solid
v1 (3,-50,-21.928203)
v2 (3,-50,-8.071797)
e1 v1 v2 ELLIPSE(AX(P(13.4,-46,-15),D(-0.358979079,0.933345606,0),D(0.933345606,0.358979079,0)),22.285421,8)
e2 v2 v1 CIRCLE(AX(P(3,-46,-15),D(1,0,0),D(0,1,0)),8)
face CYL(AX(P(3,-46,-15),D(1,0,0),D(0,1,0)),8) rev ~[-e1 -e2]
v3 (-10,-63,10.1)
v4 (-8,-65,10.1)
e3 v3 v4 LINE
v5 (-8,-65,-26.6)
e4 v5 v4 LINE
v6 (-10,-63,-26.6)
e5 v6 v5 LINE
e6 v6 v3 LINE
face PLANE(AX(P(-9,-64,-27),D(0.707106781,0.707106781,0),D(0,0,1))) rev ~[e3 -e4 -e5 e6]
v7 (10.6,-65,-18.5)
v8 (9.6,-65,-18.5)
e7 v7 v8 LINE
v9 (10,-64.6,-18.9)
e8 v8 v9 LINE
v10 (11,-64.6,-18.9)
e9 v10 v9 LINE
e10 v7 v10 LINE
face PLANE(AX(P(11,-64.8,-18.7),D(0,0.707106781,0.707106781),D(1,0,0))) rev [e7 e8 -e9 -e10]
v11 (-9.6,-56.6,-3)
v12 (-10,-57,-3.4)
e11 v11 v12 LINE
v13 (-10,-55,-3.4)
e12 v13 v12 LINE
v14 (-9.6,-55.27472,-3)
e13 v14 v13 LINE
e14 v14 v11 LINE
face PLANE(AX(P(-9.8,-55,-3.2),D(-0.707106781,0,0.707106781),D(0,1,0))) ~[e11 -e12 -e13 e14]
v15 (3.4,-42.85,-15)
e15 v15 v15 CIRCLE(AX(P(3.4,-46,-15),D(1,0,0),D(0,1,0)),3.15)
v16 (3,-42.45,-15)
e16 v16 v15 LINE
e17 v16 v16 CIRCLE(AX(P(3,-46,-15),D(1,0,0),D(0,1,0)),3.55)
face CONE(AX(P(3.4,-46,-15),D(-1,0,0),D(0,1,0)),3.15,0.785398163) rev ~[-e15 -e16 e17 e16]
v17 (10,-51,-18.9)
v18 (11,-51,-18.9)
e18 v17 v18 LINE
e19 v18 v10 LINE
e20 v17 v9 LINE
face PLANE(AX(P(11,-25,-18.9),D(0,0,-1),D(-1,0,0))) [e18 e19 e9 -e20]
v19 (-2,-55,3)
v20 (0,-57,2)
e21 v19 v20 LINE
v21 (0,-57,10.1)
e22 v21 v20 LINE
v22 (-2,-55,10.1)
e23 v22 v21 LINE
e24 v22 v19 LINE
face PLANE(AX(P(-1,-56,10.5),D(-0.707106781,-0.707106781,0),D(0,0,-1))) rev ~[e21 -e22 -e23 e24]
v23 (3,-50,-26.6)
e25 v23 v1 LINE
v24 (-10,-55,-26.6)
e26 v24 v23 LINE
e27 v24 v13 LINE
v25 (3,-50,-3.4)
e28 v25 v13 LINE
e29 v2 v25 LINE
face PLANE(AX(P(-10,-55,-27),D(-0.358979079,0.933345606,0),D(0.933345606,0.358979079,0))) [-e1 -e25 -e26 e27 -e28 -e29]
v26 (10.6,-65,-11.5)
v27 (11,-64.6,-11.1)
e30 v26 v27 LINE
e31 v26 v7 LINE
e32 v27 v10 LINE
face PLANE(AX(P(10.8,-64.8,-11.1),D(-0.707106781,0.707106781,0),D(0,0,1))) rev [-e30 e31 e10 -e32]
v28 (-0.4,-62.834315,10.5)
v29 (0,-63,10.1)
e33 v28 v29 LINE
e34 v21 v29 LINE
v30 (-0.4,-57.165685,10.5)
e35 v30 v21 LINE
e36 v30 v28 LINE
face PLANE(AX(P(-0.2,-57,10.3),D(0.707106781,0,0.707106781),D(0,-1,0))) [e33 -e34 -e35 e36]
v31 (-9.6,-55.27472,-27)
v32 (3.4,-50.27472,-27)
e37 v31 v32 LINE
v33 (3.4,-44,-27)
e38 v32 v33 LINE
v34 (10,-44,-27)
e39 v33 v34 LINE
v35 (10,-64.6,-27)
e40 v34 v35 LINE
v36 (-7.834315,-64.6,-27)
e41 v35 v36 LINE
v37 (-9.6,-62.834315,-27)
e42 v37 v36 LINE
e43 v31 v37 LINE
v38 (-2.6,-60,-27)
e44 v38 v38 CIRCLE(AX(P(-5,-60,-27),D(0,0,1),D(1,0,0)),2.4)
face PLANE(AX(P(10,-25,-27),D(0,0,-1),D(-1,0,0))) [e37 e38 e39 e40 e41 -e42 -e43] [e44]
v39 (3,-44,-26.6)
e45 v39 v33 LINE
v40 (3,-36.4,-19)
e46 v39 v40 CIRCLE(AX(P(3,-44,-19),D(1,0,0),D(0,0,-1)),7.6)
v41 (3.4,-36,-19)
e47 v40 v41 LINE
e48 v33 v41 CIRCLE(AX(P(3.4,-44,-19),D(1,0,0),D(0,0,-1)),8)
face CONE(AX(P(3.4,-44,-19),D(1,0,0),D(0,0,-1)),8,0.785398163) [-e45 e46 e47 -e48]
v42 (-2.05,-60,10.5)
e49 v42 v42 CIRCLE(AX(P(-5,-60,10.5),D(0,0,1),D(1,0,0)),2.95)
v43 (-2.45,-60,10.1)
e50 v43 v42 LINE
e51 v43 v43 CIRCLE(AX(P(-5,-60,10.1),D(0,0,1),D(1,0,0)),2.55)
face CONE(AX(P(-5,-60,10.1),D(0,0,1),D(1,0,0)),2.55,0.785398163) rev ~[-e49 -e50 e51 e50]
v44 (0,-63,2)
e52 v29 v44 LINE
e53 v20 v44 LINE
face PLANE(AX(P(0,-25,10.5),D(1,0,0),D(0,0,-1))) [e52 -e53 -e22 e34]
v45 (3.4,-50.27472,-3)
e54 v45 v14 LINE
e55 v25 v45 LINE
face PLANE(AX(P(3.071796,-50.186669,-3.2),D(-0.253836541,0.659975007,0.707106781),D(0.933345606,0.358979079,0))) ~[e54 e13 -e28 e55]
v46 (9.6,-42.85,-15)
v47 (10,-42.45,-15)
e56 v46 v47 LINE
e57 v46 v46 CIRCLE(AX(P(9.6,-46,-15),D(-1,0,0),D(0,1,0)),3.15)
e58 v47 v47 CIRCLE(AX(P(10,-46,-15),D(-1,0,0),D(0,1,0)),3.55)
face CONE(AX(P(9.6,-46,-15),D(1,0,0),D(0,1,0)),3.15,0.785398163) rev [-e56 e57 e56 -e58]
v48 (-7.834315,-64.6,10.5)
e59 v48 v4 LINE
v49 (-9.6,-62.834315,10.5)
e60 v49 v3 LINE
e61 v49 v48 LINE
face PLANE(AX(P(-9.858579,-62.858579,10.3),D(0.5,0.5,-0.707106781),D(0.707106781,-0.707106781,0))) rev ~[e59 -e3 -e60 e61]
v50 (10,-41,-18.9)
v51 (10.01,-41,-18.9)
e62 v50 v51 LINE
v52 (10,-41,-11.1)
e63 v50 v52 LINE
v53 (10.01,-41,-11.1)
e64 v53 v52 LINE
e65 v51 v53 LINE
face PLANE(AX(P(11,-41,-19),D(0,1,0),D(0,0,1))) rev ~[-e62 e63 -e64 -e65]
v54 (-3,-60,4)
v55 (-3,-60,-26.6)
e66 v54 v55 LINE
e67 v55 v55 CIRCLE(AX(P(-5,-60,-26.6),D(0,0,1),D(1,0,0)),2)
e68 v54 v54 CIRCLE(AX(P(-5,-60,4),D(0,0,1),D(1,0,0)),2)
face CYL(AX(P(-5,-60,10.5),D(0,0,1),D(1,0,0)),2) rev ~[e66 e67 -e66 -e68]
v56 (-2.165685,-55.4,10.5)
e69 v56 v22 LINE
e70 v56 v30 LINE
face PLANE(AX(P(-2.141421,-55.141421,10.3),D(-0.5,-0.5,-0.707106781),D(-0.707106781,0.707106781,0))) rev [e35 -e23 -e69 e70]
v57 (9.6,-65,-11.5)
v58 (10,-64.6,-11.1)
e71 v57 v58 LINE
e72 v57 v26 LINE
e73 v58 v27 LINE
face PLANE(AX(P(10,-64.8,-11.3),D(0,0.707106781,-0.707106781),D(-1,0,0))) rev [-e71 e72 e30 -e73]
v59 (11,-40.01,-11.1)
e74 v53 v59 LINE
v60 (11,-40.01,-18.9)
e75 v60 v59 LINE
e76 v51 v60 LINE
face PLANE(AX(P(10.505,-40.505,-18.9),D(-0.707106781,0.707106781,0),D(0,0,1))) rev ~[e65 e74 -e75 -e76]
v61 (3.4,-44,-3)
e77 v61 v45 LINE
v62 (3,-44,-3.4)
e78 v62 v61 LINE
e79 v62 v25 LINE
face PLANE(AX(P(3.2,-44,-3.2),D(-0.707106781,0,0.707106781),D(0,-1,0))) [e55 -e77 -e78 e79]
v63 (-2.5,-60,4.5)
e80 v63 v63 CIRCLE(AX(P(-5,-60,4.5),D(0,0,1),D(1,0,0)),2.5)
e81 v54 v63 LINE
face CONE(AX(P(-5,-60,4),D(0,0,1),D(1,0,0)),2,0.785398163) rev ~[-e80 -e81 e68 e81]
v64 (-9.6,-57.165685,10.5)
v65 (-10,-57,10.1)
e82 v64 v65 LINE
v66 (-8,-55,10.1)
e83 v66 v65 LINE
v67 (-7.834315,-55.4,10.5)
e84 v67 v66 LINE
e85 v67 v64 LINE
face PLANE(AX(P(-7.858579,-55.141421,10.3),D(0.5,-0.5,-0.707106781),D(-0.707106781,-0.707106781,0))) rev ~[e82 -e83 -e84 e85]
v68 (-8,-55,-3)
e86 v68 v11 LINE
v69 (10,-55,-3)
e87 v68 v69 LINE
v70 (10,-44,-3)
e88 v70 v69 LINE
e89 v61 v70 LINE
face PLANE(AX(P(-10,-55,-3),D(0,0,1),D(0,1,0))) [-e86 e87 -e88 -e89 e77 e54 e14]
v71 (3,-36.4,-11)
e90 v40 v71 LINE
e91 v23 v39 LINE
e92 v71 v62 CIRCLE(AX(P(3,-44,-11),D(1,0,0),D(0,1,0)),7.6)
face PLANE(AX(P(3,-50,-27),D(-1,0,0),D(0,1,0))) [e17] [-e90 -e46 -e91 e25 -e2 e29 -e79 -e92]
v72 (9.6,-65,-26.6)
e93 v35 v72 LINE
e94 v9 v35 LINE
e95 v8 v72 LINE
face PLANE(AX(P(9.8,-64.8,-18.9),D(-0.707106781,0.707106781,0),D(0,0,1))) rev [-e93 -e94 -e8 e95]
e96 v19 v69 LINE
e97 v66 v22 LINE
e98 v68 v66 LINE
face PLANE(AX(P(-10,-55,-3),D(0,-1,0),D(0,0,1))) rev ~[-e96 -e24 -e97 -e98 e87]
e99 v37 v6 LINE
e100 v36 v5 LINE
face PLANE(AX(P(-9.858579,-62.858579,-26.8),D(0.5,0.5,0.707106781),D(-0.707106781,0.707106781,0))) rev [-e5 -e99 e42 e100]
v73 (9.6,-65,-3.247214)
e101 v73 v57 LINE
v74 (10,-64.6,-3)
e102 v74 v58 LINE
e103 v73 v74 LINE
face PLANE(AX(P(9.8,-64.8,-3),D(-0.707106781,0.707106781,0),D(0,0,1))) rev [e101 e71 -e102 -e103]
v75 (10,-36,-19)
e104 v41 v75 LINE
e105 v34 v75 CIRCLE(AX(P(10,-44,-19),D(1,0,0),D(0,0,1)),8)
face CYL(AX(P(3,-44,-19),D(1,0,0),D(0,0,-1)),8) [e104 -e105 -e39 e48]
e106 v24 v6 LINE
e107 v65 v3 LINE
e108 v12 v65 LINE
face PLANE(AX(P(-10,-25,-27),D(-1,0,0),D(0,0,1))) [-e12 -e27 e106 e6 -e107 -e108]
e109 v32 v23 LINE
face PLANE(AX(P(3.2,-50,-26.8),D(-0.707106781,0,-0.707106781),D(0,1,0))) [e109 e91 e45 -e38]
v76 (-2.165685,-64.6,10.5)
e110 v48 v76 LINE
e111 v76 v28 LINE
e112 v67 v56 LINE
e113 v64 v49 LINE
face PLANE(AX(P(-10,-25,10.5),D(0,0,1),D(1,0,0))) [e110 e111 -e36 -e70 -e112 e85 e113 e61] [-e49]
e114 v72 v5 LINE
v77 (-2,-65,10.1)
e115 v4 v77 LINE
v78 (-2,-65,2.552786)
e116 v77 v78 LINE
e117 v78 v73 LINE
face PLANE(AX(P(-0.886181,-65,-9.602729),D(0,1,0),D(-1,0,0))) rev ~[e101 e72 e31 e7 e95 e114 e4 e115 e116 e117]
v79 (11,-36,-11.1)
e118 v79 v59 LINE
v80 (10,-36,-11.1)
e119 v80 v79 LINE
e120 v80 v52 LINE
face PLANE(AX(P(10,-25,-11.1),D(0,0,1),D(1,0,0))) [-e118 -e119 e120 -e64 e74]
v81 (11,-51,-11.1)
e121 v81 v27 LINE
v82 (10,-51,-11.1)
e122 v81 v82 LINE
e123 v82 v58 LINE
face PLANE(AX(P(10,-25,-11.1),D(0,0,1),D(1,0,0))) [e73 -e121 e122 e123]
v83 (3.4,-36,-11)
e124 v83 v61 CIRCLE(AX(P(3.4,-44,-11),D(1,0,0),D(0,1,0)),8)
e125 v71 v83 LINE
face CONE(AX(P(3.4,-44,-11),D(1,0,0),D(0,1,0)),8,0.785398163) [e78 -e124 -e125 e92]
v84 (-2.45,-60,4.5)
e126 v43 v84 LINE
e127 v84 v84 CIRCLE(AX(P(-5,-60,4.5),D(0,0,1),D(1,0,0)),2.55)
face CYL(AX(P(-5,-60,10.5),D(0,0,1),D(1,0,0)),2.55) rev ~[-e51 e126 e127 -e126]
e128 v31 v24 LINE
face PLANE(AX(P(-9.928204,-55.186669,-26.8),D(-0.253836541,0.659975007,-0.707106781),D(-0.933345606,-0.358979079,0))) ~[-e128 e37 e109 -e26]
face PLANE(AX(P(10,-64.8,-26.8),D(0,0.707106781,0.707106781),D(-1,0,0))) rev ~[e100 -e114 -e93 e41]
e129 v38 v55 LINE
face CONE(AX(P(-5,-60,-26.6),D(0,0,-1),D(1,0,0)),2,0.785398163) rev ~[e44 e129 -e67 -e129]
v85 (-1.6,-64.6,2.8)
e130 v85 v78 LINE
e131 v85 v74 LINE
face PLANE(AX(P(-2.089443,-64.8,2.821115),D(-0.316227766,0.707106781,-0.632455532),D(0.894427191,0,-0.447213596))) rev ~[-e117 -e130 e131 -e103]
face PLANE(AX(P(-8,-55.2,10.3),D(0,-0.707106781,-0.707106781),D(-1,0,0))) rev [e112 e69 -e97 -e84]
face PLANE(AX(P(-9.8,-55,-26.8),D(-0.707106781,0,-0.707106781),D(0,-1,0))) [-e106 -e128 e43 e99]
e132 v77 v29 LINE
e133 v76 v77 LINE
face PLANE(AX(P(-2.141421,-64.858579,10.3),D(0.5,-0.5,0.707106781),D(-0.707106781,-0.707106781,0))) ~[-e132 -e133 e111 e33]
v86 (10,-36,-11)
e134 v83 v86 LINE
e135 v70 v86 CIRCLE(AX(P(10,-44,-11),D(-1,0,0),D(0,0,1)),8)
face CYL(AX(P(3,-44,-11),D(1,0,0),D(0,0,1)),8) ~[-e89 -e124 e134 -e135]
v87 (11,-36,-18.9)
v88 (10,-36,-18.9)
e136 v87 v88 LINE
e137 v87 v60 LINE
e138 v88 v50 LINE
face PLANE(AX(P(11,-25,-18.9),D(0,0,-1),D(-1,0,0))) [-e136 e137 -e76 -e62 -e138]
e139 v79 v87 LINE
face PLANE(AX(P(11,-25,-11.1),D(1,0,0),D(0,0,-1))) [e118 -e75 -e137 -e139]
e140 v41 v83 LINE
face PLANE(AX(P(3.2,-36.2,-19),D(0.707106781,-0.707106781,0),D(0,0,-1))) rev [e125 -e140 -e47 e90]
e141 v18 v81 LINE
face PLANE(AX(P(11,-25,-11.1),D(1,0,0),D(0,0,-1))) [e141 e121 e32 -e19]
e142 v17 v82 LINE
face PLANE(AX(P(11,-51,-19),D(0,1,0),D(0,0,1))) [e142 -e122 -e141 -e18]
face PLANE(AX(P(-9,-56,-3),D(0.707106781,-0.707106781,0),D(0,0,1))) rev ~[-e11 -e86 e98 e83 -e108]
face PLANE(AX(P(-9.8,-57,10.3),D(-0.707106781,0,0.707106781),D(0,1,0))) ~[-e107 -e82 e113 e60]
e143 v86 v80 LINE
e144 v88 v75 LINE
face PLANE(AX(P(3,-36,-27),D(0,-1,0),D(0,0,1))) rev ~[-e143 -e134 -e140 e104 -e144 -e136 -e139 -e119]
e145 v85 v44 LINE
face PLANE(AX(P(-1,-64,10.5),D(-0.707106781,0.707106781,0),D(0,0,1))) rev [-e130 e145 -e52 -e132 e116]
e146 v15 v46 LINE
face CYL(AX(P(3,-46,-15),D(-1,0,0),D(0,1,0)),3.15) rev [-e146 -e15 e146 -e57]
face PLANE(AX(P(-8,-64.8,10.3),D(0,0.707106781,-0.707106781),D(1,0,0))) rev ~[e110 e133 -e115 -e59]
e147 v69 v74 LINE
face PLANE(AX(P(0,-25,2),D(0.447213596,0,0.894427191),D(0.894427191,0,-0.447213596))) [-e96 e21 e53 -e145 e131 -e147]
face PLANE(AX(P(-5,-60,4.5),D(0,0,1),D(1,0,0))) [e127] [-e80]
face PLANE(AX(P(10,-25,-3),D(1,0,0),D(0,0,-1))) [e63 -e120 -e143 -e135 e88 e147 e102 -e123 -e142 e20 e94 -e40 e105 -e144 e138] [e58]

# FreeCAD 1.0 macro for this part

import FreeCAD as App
import Part
import Sketcher
from FreeCAD import Vector
Q = App.Units.Quantity


def edges_at(feature, points):
    """Names of the edges that pass closest to the given points."""
    edges = feature.Shape.Edges
    near = lambda p: min(range(len(edges)), key=lambda i: edges[i].distToShape(Part.Vertex(*p))[0])
    return sorted({f"Edge{near(p) + 1}" for p in points})


def add_polygon(sketch, points):
    """Adds a closed chain of lines whose ends are joined by coincident constraints."""
    first, n = sketch.GeometryCount, len(points)
    for a, b in zip(points, points[1:] + points[:1]):
        sketch.addGeometry(Part.LineSegment(App.Vector(*a, 0), App.Vector(*b, 0)), False)
    for i in range(n):
        sketch.addConstraint(Sketcher.Constraint("Coincident", first + i, 2, first + (i + 1) % n, 1))

doc = App.newDocument("Part")
body = doc.addObject("PartDesign::Body", "Body")

# Sketch on XZ plane
sketch1 = body.newObject("Sketcher::SketchObject", "Sketch")
sketch1.AttachmentSupport = (doc.getObject("XZ_Plane"), [""])
sketch1.MapMode = "FlatFace"
add_polygon(sketch1, [(-10, 10.5), (-20, 10.5), (-20, -27), (0, -27), (0, -18.9), (1, -18.9), (1, -11.1), (0, -11.1), (0, -3), (-10, 2)])  # lines 0-9
sketch1.addConstraint([
    Sketcher.Constraint("Horizontal", 0),
    Sketcher.Constraint("Vertical", 1),
    Sketcher.Constraint("Horizontal", 2),
    Sketcher.Constraint("Vertical", 3),
    Sketcher.Constraint("Horizontal", 4),
    Sketcher.Constraint("Vertical", 5),
    Sketcher.Constraint("Horizontal", 6),
    Sketcher.Constraint("Vertical", 7),
    Sketcher.Constraint("Vertical", 9),
    Sketcher.Constraint("PointOnObject", 2, 2, -2),
    Sketcher.Constraint("PointOnObject", 6, 2, -2),
    Sketcher.Constraint("Equal", 3, 7),
    Sketcher.Constraint("DistanceX", 0, 2, 0, 1, Q("10 mm")),
    Sketcher.Constraint("DistanceX", 2, 1, 2, 2, Q("20 mm")),
    Sketcher.Constraint("DistanceX", 4, 1, 4, 2, Q("1 mm")),
    Sketcher.Constraint("DistanceY", 1, 2, 1, 1, Q("37.5 mm")),
    Sketcher.Constraint("DistanceY", 3, 1, 3, 2, Q("8.1 mm")),
    Sketcher.Constraint("DistanceY", 5, 1, 5, 2, Q("7.8 mm")),
    Sketcher.Constraint("DistanceY", 9, 1, 9, 2, Q("8.5 mm")),
    Sketcher.Constraint("DistanceY", 1, 2, -1, 1, Q("27 mm")),
])
pad1 = body.newObject("PartDesign::Pad", "Pad")
pad1.Profile = sketch1
pad1.Length = 40

# Sketch on YZ plane
sketch2 = body.newObject("Sketcher::SketchObject", "Sketch001")
sketch2.AttachmentSupport = (doc.getObject("YZ_Plane"), [""])
sketch2.MapMode = "FlatFace"
sketch2.AttachmentOffset = App.Placement(Vector(0, 0, -20), App.Rotation())
add_polygon(sketch2, [(-30, 10.5), (-30, -3), (0, -3), (0, 10.5)])  # lines 0-3
sketch2.addConstraint([
    Sketcher.Constraint("Vertical", 0),
    Sketcher.Constraint("Horizontal", 1),
    Sketcher.Constraint("Vertical", 2),
    Sketcher.Constraint("Horizontal", 3),
    Sketcher.Constraint("PointOnObject", 1, 2, -2),
    Sketcher.Constraint("DistanceX", 1, 1, 1, 2, Q("30 mm")),
    Sketcher.Constraint("DistanceY", 0, 2, 0, 1, Q("13.5 mm")),
    Sketcher.Constraint("DistanceY", 0, 2, -1, 1, Q("3 mm")),
])
pocket1 = body.newObject("PartDesign::Pocket", "Pocket")
pocket1.Profile = sketch2
pocket1.Type = "ThroughAll"
pocket1.Reversed = True

# Sketch on XY plane
sketch3 = body.newObject("Sketcher::SketchObject", "Sketch002")
sketch3.AttachmentSupport = (doc.getObject("XY_Plane"), [""])
sketch3.MapMode = "FlatFace"
sketch3.AttachmentOffset = App.Placement(Vector(0, 0, -27), App.Rotation())
add_polygon(sketch3, [(-20, -30), (-7, -25), (-7, 0), (-20, 0)])  # lines 0-3
sketch3.addConstraint([
    Sketcher.Constraint("Vertical", 1),
    Sketcher.Constraint("Horizontal", 2),
    Sketcher.Constraint("Vertical", 3),
    Sketcher.Constraint("PointOnObject", 1, 2, -1),
    Sketcher.Constraint("DistanceX", 2, 2, 2, 1, Q("13 mm")),
    Sketcher.Constraint("DistanceY", 1, 1, 1, 2, Q("25 mm")),
    Sketcher.Constraint("DistanceY", 3, 2, 3, 1, Q("30 mm")),
    Sketcher.Constraint("DistanceX", 0, 2, -1, 1, Q("7 mm")),
])
pocket2 = body.newObject("PartDesign::Pocket", "Pocket001")
pocket2.Profile = sketch3
pocket2.Type = "ThroughAll"
pocket2.Reversed = True

# Sketch on YZ plane
sketch4 = body.newObject("Sketcher::SketchObject", "Sketch003")
sketch4.AttachmentSupport = (doc.getObject("YZ_Plane"), [""])
sketch4.MapMode = "FlatFace"
sketch4.AttachmentOffset = App.Placement(Vector(0, 0, -7), App.Rotation())
sketch4.addGeometry(Part.Circle(Vector(-21, -15, 0), Vector(0, 0, 1), 8), False)
sketch4.addConstraint([
    Sketcher.Constraint("Diameter", 0, Q("16 mm")),
    Sketcher.Constraint("DistanceX", 0, 3, -1, 1, Q("21 mm")),
    Sketcher.Constraint("DistanceY", 0, 3, -1, 1, Q("15 mm")),
])
pocket3 = body.newObject("PartDesign::Pocket", "Pocket002")
pocket3.Profile = sketch4
pocket3.Type = "ThroughAll"

# Sketch on YZ plane
sketch5 = body.newObject("Sketcher::SketchObject", "Sketch004")
sketch5.AttachmentSupport = (doc.getObject("YZ_Plane"), [""])
sketch5.MapMode = "FlatFace"
sketch5.AttachmentOffset = App.Placement(Vector(0, 0, -7), App.Rotation())
sketch5.addGeometry(Part.Circle(Vector(-21, -15, 0), Vector(0, 0, 1), 3.15), False)
sketch5.addConstraint([
    Sketcher.Constraint("Diameter", 0, Q("6.3 mm")),
    Sketcher.Constraint("DistanceX", 0, 3, -1, 1, Q("21 mm")),
    Sketcher.Constraint("DistanceY", 0, 3, -1, 1, Q("15 mm")),
])
pocket4 = body.newObject("PartDesign::Pocket", "Pocket003")
pocket4.Profile = sketch5
pocket4.Type = "ThroughAll"
pocket4.Reversed = True

# Sketch on YZ plane
sketch6 = body.newObject("Sketcher::SketchObject", "Sketch005")
sketch6.AttachmentSupport = (doc.getObject("YZ_Plane"), [""])
sketch6.MapMode = "FlatFace"
sketch6.AttachmentOffset = App.Placement(Vector(0, 0, -7), App.Rotation())
add_polygon(sketch6, [(-11, -3), (-11, -27), (0, -27), (0, -3)])  # lines 0-3
sketch6.addConstraint([
    Sketcher.Constraint("Vertical", 0),
    Sketcher.Constraint("Horizontal", 1),
    Sketcher.Constraint("Vertical", 2),
    Sketcher.Constraint("Horizontal", 3),
    Sketcher.Constraint("PointOnObject", 1, 2, -2),
    Sketcher.Constraint("DistanceX", 1, 1, 1, 2, Q("11 mm")),
    Sketcher.Constraint("DistanceY", 0, 2, 0, 1, Q("24 mm")),
    Sketcher.Constraint("DistanceY", 0, 2, -1, 1, Q("27 mm")),
])
pocket5 = body.newObject("PartDesign::Pocket", "Pocket004")
pocket5.Profile = sketch6
pocket5.Type = "ThroughAll"
pocket5.Reversed = True
doc.recompute()

fillet = body.newObject("PartDesign::Fillet", "Fillet")
fillet.Base = (pocket5, edges_at(pocket5, [(-3.5, -11, -27), (-3.5, -11, -3)]))
fillet.Radius = 8

# Sketch on XY plane
sketch7 = body.newObject("Sketcher::SketchObject", "Sketch006")
sketch7.AttachmentSupport = (doc.getObject("XY_Plane"), [""])
sketch7.MapMode = "FlatFace"
sketch7.AttachmentOffset = App.Placement(Vector(0, 0, 10.5), App.Rotation())
sketch7.addGeometry(Part.Circle(Vector(-15, -35, 0), Vector(0, 0, 1), 2), False)
sketch7.addConstraint([
    Sketcher.Constraint("Diameter", 0, Q("4 mm")),
    Sketcher.Constraint("DistanceX", 0, 3, -1, 1, Q("15 mm")),
    Sketcher.Constraint("DistanceY", 0, 3, -1, 1, Q("35 mm")),
])
pocket6 = body.newObject("PartDesign::Pocket", "Pocket005")
pocket6.Profile = sketch7
pocket6.Type = "ThroughAll"

# Sketch on XY plane
sketch8 = body.newObject("Sketcher::SketchObject", "Sketch007")
sketch8.AttachmentSupport = (doc.getObject("XY_Plane"), [""])
sketch8.MapMode = "FlatFace"
sketch8.AttachmentOffset = App.Placement(Vector(0, 0, 10.5), App.Rotation())
sketch8.addGeometry(Part.Circle(Vector(-15, -35, 0), Vector(0, 0, 1), 2.55), False)
sketch8.addConstraint([
    Sketcher.Constraint("Diameter", 0, Q("5.1 mm")),
    Sketcher.Constraint("DistanceX", 0, 3, -1, 1, Q("15 mm")),
    Sketcher.Constraint("DistanceY", 0, 3, -1, 1, Q("35 mm")),
])
pocket7 = body.newObject("PartDesign::Pocket", "Pocket006")
pocket7.Profile = sketch8
pocket7.Length = 6

# Sketch on YZ plane
sketch9 = body.newObject("Sketcher::SketchObject", "Sketch008")
sketch9.AttachmentSupport = (doc.getObject("YZ_Plane"), [""])
sketch9.MapMode = "FlatFace"
sketch9.AttachmentOffset = App.Placement(Vector(0, 0, 1), App.Rotation())
add_polygon(sketch9, [(-26, -11), (-26, -19), (-16, -19), (-16, -11)])  # lines 0-3
sketch9.addConstraint([
    Sketcher.Constraint("Vertical", 0),
    Sketcher.Constraint("Horizontal", 1),
    Sketcher.Constraint("Vertical", 2),
    Sketcher.Constraint("Horizontal", 3),
    Sketcher.Constraint("DistanceX", 1, 1, 1, 2, Q("10 mm")),
    Sketcher.Constraint("DistanceY", 0, 2, 0, 1, Q("8 mm")),
    Sketcher.Constraint("DistanceX", 0, 2, -1, 1, Q("26 mm")),
    Sketcher.Constraint("DistanceY", 0, 2, -1, 1, Q("19 mm")),
])
pocket8 = body.newObject("PartDesign::Pocket", "Pocket007")
pocket8.Profile = sketch9
pocket8.Length = 1
doc.recompute()

chamfer = body.newObject("PartDesign::Chamfer", "Chamfer")
chamfer.Base = (pocket8, edges_at(pocket8, [
    (-10, -40, 6.25),
    (-20, -40, -8.25),
    (-10, -30, 6.25),
    (-20, -30, 3.75),
]))
chamfer.Size = 2
doc.recompute()

chamfer2 = body.newObject("PartDesign::Chamfer", "Chamfer001")
chamfer2.Base = (chamfer, edges_at(chamfer, [
    (-9, -40, -27),
    (0, -40, -22.95),
    (0.5, -40, -18.9),
    (1, -40, -15),
    (0.5, -40, -11.1),
    (0, -40, -7.05),
    (-19, -39, -27),
    (-20, -34, -27),
    (-13.5, -27.5, -27),
    (-7, -22, -27),
    (-7, -13.343, -24.657),
    (-7, -11, -15),
    (-7, -13.343, -5.343),
    (-7, -22, -3),
    (-13.5, -27.5, -3),
    (-20, -31, -3),
    (-7, -24.15, -15),
    (0, -24.15, -15),
    (-17, -35, -27),
    (-15, -40, 10.5),
    (-19, -39, 10.5),
    (-20, -35, 10.5),
    (-19, -31, 10.5),
    (-15, -30, 10.5),
    (-11, -31, 10.5),
    (-10, -35, 10.5),
    (-11, -39, 10.5),
    (-17.55, -35, 10.5),
    (-6, -40, 0),
    (-6, -40, 0),
]))
chamfer2.Size = 0.4
doc.recompute()

chamfer3 = body.newObject("PartDesign::Chamfer", "Chamfer002")
chamfer3.Base = (chamfer2, edges_at(chamfer2, [(1, -16, -15)]))
chamfer3.Size = 0.99
doc.recompute()

chamfer4 = body.newObject("PartDesign::Chamfer", "Chamfer003")
chamfer4.Base = (chamfer3, edges_at(chamfer3, [(-17, -35, 4.5)]))
chamfer4.Size = 0.5
body2 = doc.addObject("PartDesign::Body", "Body001")
doc.recompute()

body.Placement = App.Placement(Vector(10, -25, 0), App.Rotation(Vector(0, 0, 1), 0))
boolean = body2.newObject("PartDesign::Boolean", "Boolean")
boolean.Type = "Fuse"
boolean.addObjects([body])

doc.recompute()
